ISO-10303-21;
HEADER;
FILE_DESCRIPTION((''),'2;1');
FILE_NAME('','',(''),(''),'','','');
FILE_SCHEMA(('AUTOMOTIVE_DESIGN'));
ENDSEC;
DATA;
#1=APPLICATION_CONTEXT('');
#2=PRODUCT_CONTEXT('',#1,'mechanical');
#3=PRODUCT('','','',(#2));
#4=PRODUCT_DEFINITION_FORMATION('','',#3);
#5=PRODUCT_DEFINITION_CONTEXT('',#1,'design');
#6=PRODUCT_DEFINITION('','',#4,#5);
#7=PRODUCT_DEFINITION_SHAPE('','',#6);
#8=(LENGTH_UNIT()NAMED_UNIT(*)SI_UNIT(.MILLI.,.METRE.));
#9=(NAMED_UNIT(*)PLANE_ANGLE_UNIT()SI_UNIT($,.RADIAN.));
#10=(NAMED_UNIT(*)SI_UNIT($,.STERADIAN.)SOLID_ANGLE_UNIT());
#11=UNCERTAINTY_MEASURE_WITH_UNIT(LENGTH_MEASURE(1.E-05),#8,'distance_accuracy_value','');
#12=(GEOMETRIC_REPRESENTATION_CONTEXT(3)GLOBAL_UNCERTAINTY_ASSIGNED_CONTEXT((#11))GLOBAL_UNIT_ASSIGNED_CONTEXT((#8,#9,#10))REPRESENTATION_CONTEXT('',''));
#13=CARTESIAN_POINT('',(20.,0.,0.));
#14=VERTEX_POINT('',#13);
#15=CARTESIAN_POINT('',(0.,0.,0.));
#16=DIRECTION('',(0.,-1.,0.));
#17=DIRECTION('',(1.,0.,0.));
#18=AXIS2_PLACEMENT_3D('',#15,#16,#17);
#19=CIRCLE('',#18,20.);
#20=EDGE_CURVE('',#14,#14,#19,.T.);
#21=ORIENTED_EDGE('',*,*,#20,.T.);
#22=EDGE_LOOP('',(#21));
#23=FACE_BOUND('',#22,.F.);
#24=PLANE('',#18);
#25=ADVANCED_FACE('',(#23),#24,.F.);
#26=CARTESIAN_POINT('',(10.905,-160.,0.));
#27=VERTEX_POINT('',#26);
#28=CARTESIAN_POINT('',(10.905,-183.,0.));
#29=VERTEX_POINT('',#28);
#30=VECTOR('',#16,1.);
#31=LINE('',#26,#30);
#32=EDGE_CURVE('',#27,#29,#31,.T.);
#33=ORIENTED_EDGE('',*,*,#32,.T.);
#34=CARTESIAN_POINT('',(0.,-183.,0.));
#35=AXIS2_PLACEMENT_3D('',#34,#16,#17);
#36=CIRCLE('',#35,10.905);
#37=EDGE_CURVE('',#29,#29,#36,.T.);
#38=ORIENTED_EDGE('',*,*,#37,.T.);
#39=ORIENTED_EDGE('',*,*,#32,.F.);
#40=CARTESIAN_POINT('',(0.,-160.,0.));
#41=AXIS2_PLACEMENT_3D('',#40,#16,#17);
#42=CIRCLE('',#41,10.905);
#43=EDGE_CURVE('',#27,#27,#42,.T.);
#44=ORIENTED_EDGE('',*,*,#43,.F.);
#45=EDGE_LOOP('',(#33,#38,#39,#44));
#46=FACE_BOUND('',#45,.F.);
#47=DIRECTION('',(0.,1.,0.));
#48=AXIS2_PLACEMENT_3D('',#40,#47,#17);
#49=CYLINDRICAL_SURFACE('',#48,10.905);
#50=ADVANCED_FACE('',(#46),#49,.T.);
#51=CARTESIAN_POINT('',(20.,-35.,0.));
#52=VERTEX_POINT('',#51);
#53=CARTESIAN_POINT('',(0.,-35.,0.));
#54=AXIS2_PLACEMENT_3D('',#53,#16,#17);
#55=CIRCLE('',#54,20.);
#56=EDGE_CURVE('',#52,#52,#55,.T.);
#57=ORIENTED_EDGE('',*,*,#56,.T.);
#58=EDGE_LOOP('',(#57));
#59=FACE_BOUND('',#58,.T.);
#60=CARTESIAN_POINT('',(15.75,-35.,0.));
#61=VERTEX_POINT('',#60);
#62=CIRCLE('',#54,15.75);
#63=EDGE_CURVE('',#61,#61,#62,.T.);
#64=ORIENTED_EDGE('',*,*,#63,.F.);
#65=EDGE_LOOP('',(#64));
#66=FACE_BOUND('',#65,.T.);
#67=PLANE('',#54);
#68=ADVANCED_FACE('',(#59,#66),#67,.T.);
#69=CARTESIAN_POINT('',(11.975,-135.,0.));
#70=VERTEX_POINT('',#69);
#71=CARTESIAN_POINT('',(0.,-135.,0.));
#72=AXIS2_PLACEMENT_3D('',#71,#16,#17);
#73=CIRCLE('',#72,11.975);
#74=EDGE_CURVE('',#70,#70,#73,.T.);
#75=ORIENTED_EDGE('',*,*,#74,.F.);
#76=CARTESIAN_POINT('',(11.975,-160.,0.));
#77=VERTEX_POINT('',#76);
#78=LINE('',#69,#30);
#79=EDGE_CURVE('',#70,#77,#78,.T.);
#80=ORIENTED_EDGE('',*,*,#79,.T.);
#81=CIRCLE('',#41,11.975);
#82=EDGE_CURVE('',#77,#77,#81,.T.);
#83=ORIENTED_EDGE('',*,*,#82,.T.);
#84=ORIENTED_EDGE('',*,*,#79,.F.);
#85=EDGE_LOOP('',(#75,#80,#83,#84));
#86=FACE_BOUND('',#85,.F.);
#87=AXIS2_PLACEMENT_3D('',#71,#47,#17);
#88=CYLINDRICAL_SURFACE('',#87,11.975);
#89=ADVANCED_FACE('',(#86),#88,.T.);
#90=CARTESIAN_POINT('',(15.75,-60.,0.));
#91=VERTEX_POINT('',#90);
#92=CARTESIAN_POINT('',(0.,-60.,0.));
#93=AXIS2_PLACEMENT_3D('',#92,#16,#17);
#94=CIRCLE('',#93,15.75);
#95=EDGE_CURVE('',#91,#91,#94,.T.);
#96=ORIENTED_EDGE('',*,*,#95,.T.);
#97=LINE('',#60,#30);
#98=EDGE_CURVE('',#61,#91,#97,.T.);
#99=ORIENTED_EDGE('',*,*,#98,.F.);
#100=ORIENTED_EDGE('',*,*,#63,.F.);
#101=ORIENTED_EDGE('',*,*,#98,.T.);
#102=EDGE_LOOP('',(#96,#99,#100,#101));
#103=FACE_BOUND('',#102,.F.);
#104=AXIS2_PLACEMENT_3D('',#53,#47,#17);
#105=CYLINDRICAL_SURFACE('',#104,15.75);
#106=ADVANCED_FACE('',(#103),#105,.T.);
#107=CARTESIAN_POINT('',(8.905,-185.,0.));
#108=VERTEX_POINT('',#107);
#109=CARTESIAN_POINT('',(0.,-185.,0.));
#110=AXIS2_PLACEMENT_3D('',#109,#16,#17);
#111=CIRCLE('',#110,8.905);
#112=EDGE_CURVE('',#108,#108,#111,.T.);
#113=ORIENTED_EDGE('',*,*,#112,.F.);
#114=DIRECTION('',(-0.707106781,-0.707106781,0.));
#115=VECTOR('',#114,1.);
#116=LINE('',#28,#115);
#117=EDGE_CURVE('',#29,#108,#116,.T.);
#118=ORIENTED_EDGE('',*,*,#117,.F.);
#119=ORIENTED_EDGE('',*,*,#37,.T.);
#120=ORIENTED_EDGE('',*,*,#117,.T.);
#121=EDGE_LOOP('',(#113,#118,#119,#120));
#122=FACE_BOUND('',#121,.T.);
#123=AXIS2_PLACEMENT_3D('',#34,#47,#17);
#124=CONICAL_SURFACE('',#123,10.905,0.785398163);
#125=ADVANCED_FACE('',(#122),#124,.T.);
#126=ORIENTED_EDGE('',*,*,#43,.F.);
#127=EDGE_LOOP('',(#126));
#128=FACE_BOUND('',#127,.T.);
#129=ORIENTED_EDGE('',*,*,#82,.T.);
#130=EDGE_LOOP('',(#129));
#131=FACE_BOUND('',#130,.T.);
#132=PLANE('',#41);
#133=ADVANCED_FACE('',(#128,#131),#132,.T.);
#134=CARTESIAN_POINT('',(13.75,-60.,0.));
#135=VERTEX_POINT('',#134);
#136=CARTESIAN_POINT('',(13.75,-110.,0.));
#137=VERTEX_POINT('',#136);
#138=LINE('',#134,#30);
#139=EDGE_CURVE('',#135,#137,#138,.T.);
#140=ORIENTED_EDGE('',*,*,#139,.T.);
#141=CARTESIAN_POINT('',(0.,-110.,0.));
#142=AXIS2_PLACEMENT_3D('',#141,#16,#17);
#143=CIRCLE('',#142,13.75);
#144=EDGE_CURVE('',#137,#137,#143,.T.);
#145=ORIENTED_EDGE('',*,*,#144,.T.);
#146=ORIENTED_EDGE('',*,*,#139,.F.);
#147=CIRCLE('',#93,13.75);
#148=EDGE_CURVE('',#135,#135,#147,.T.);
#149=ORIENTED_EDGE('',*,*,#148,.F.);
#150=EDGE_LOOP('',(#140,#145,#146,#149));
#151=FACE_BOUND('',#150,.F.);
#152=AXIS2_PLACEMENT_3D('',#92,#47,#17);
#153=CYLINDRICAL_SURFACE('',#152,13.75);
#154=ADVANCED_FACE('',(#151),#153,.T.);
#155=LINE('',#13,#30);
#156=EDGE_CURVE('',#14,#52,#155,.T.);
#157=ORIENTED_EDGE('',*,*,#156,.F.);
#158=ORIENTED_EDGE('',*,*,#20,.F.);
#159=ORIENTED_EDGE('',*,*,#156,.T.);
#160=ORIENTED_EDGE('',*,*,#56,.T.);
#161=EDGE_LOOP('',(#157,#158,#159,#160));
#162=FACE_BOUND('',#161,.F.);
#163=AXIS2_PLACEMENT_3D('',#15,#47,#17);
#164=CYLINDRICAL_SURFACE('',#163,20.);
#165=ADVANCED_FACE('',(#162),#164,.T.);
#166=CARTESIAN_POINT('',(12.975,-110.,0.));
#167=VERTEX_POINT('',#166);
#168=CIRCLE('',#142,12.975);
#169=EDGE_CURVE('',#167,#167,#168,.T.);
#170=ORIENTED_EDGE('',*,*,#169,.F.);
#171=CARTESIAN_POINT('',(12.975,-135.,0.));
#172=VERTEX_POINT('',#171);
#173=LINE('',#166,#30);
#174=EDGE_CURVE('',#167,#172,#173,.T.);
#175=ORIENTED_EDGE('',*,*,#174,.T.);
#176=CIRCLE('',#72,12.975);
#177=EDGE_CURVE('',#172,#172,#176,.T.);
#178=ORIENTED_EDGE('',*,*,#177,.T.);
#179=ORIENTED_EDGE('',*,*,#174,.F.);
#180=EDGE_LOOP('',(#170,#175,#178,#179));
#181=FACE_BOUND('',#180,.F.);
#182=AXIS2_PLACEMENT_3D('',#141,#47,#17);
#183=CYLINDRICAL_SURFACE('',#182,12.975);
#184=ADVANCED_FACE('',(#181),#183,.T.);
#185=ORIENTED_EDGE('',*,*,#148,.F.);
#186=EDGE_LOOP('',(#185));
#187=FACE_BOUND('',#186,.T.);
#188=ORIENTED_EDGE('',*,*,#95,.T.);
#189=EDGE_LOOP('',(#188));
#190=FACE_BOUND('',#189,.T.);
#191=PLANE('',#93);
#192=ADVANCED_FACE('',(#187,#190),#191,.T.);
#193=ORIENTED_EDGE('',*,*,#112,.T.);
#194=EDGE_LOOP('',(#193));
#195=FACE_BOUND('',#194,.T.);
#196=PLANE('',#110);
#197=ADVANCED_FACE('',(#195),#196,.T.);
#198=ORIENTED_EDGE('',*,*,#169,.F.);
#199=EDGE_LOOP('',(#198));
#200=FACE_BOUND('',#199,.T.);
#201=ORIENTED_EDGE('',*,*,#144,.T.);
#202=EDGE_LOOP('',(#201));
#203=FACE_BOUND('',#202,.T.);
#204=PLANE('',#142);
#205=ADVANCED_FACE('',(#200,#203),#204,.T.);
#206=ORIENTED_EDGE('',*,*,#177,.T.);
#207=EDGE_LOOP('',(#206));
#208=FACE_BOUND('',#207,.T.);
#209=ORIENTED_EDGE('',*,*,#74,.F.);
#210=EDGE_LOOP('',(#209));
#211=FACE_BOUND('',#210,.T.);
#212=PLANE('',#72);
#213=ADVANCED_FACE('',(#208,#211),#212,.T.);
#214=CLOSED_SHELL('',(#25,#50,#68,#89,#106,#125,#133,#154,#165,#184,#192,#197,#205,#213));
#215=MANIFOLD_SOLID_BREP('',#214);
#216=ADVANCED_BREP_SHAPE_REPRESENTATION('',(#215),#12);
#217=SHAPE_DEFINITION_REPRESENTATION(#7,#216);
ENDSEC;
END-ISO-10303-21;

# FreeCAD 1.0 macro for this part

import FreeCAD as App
import Part
import Sketcher

V = App.Vector


def edges_at(feature, points):
    """Names of the edges that pass closest to the given points."""
    edges = feature.Shape.Edges
    near = lambda p: min(range(len(edges)), key=lambda i: edges[i].distToShape(Part.Vertex(*p))[0])
    return sorted({f"Edge{near(p) + 1}" for p in points})

doc = App.newDocument("Part")
body = doc.addObject("PartDesign::Body", "Body")

sketch1 = body.newObject("Sketcher::SketchObject", "Sketch")
sketch1.AttachmentSupport = (doc.getObject("XZ_Plane"), [""])
sketch1.MapMode = "FlatFace"
sketch1.addGeometry(Part.Circle(V(0, 0, 0), V(0, 0, 1), 20), False)
sketch1.addConstraint([
    Sketcher.Constraint("Coincident", 0, 3, -1, 1),
    Sketcher.Constraint("Diameter", 0, 40.0),
])
pad1 = body.newObject("PartDesign::Pad", "Pad")
pad1.Profile = sketch1
pad1.Length = 35

sketch2 = body.newObject("Sketcher::SketchObject", "Sketch001")
sketch2.AttachmentSupport = (doc.getObject("XZ_Plane"), [""])
sketch2.MapMode = "FlatFace"
sketch2.AttachmentOffset = App.Placement(V(0, 0, 35), App.Rotation())
sketch2.addGeometry(Part.Circle(V(0, 0, 0), V(0, 0, 1), 15.75), False)
sketch2.addConstraint([
    Sketcher.Constraint("Coincident", 0, 3, -1, 1),
    Sketcher.Constraint("Diameter", 0, 31.5),
])
pad2 = body.newObject("PartDesign::Pad", "Pad001")
pad2.Profile = sketch2
pad2.Length = 25

sketch3 = body.newObject("Sketcher::SketchObject", "Sketch002")
sketch3.AttachmentSupport = (doc.getObject("XZ_Plane"), [""])
sketch3.MapMode = "FlatFace"
sketch3.AttachmentOffset = App.Placement(V(0, 0, 60), App.Rotation())
sketch3.addGeometry(Part.Circle(V(0, 0, 0), V(0, 0, 1), 13.75), False)
sketch3.addConstraint([
    Sketcher.Constraint("Coincident", 0, 3, -1, 1),
    Sketcher.Constraint("Diameter", 0, 27.5),
])
pad3 = body.newObject("PartDesign::Pad", "Pad002")
pad3.Profile = sketch3
pad3.Length = 50

sketch4 = body.newObject("Sketcher::SketchObject", "Sketch003")
sketch4.AttachmentSupport = (doc.getObject("XZ_Plane"), [""])
sketch4.MapMode = "FlatFace"
sketch4.AttachmentOffset = App.Placement(V(0, 0, 110), App.Rotation())
sketch4.addGeometry(Part.Circle(V(0, 0, 0), V(0, 0, 1), 12.975), False)
sketch4.addConstraint([
    Sketcher.Constraint("Coincident", 0, 3, -1, 1),
    Sketcher.Constraint("Diameter", 0, 25.95),
])
pad4 = body.newObject("PartDesign::Pad", "Pad003")
pad4.Profile = sketch4
pad4.Length = 25

sketch5 = body.newObject("Sketcher::SketchObject", "Sketch004")
sketch5.AttachmentSupport = (doc.getObject("XZ_Plane"), [""])
sketch5.MapMode = "FlatFace"
sketch5.AttachmentOffset = App.Placement(V(0, 0, 135), App.Rotation())
sketch5.addGeometry(Part.Circle(V(0, 0, 0), V(0, 0, 1), 11.975), False)
sketch5.addConstraint([
    Sketcher.Constraint("Coincident", 0, 3, -1, 1),
    Sketcher.Constraint("Diameter", 0, 23.95),
])
pad5 = body.newObject("PartDesign::Pad", "Pad004")
pad5.Profile = sketch5
pad5.Length = 25

sketch6 = body.newObject("Sketcher::SketchObject", "Sketch005")
sketch6.AttachmentSupport = (doc.getObject("XZ_Plane"), [""])
sketch6.MapMode = "FlatFace"
sketch6.AttachmentOffset = App.Placement(V(0, 0, 160), App.Rotation())
sketch6.addGeometry(Part.Circle(V(0, 0, 0), V(0, 0, 1), 10.905), False)
sketch6.addConstraint([
    Sketcher.Constraint("Coincident", 0, 3, -1, 1),
    Sketcher.Constraint("Diameter", 0, 21.81),
])
pad6 = body.newObject("PartDesign::Pad", "Pad005")
pad6.Profile = sketch6
pad6.Length = 25
doc.recompute()

chamfer = body.newObject("PartDesign::Chamfer", "Chamfer")
chamfer.Base = (pad6, edges_at(pad6, [(-10.905, -185, 0)]))
chamfer.Size = 2

doc.recompute()
